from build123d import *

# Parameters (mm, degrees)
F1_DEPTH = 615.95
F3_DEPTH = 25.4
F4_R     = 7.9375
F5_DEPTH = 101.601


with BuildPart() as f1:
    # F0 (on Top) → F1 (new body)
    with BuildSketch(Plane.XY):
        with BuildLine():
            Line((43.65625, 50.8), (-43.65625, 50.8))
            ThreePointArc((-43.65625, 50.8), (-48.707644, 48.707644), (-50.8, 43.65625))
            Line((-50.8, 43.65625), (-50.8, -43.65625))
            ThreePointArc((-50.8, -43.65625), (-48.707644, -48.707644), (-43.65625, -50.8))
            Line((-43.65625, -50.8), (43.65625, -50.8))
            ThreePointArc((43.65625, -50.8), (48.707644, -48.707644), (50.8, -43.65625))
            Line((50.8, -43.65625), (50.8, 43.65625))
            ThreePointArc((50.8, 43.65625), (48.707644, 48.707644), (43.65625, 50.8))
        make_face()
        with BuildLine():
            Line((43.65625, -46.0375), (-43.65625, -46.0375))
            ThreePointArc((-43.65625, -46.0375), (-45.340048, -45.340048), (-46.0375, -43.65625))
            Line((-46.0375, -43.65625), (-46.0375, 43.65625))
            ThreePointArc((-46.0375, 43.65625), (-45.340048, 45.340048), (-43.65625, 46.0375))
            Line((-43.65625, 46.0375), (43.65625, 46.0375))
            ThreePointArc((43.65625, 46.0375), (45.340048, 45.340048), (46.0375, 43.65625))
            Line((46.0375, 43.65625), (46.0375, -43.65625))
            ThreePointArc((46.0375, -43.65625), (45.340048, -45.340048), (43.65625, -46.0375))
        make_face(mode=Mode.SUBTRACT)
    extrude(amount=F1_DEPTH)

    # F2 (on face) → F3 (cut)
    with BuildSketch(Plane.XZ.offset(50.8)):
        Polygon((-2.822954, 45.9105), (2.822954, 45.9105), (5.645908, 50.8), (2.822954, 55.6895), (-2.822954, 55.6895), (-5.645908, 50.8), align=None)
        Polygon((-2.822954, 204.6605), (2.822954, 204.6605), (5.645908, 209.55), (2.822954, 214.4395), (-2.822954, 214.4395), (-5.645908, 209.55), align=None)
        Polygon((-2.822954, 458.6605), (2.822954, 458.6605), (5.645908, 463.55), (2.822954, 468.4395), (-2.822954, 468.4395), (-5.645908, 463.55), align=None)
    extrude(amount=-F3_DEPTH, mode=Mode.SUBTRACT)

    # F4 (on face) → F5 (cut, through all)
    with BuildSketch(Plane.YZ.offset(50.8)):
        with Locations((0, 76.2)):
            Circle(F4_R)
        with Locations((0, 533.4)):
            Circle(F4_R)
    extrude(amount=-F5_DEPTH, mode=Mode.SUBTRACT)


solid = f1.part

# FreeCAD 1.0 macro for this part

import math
import FreeCAD as App
import Part
import Sketcher
from FreeCAD import Vector
Q = App.Units.Quantity


def add_polygon(sketch, points):
    """Adds a closed chain of lines whose ends are joined by coincident constraints."""
    first, n = sketch.GeometryCount, len(points)
    for a, b in zip(points, points[1:] + points[:1]):
        sketch.addGeometry(Part.LineSegment(App.Vector(*a, 0), App.Vector(*b, 0)), False)
    for i in range(n):
        sketch.addConstraint(Sketcher.Constraint("Coincident", first + i, 2, first + (i + 1) % n, 1))

doc = App.newDocument("Part")
body = doc.addObject("PartDesign::Body", "Body")

# Sketch on XY plane
sketch1 = body.newObject("Sketcher::SketchObject", "Sketch")
sketch1.AttachmentSupport = (doc.getObject("XY_Plane"), [""])
sketch1.MapMode = "FlatFace"
sketch1.addGeometry([
    Part.LineSegment(Vector(43.7, 50.8, 0), Vector(-43.7, 50.8, 0)),  # 0
    Part.ArcOfCircle(Part.Circle(Vector(-43.7, 43.7, 0), Vector(0, 0, 1), 7.1), math.radians(90), math.radians(180)),  # 1
    Part.LineSegment(Vector(-50.8, 43.7, 0), Vector(-50.8, -43.7, 0)),  # 2
    Part.ArcOfCircle(Part.Circle(Vector(-43.7, -43.7, 0), Vector(0, 0, 1), 7.1), math.radians(-180), math.radians(-90)),  # 3
    Part.LineSegment(Vector(-43.7, -50.8, 0), Vector(43.7, -50.8, 0)),  # 4
    Part.ArcOfCircle(Part.Circle(Vector(43.7, -43.7, 0), Vector(0, 0, 1), 7.1), math.radians(-90), math.radians(0)),  # 5
    Part.LineSegment(Vector(50.8, -43.7, 0), Vector(50.8, 43.7, 0)),  # 6
    Part.ArcOfCircle(Part.Circle(Vector(43.7, 43.7, 0), Vector(0, 0, 1), 7.1), math.radians(0), math.radians(90)),  # 7
    Part.ArcOfCircle(Part.Circle(Vector(43.7, -43.7, 0), Vector(0, 0, 1), 2.4), math.radians(-90), math.radians(0)),  # 8
    Part.LineSegment(Vector(43.7, -46, 0), Vector(-43.7, -46, 0)),  # 9
    Part.ArcOfCircle(Part.Circle(Vector(-43.7, -43.7, 0), Vector(0, 0, 1), 2.4), math.radians(-180), math.radians(-90)),  # 10
    Part.LineSegment(Vector(-46, -43.7, 0), Vector(-46, 43.7, 0)),  # 11
    Part.ArcOfCircle(Part.Circle(Vector(-43.7, 43.7, 0), Vector(0, 0, 1), 2.4), math.radians(90), math.radians(180)),  # 12
    Part.LineSegment(Vector(-43.7, 46, 0), Vector(43.7, 46, 0)),  # 13
    Part.ArcOfCircle(Part.Circle(Vector(43.7, 43.7, 0), Vector(0, 0, 1), 2.4), math.radians(0), math.radians(90)),  # 14
    Part.LineSegment(Vector(46, 43.7, 0), Vector(46, -43.7, 0)),  # 15
], False)
sketch1.addConstraint([
    Sketcher.Constraint("Tangent", 0, 2, 1, 1),
    Sketcher.Constraint("Tangent", 1, 2, 2, 1),
    Sketcher.Constraint("Tangent", 2, 2, 3, 1),
    Sketcher.Constraint("Tangent", 3, 2, 4, 1),
    Sketcher.Constraint("Tangent", 4, 2, 5, 1),
    Sketcher.Constraint("Tangent", 5, 2, 6, 1),
    Sketcher.Constraint("Tangent", 6, 2, 7, 1),
    Sketcher.Constraint("Tangent", 7, 2, 0, 1),
    Sketcher.Constraint("Tangent", 8, 1, 9, 1),
    Sketcher.Constraint("Tangent", 9, 2, 10, 2),
    Sketcher.Constraint("Tangent", 10, 1, 11, 1),
    Sketcher.Constraint("Tangent", 11, 2, 12, 2),
    Sketcher.Constraint("Tangent", 12, 1, 13, 1),
    Sketcher.Constraint("Tangent", 13, 2, 14, 2),
    Sketcher.Constraint("Tangent", 14, 1, 15, 1),
    Sketcher.Constraint("Tangent", 15, 2, 8, 2),
    Sketcher.Constraint("Horizontal", 0),
    Sketcher.Constraint("Vertical", 2),
    Sketcher.Constraint("Horizontal", 4),
    Sketcher.Constraint("Vertical", 6),
    Sketcher.Constraint("Horizontal", 9),
    Sketcher.Constraint("Vertical", 11),
    Sketcher.Constraint("Horizontal", 13),
    Sketcher.Constraint("Vertical", 15),
    Sketcher.Constraint("Coincident", 8, 3, 5, 3),
    Sketcher.Constraint("Coincident", 10, 3, 3, 3),
    Sketcher.Constraint("Coincident", 12, 3, 1, 3),
    Sketcher.Constraint("Equal", 1, 3),
    Sketcher.Constraint("Equal", 3, 5),
    Sketcher.Constraint("Equal", 5, 7),
    Sketcher.Constraint("Equal", 12, 14),
    Sketcher.Constraint("Symmetric", 1, 3, 5, 3, -1, 1),
    Sketcher.Constraint("Equal", 13, 2),
    Sketcher.Constraint("DistanceY", -1, 1, 0, 2, Q("2 in")),
    Sketcher.Constraint("Radius", 1, Q("0.28125 in")),
    Sketcher.Constraint("Radius", 8, Q("0.09375 in")),
])
pad1 = body.newObject("PartDesign::Pad", "Pad")
pad1.Profile = sketch1
pad1.Length = Q("24.25 in")

# Sketch on XZ plane
sketch2 = body.newObject("Sketcher::SketchObject", "Sketch001")
sketch2.AttachmentSupport = (doc.getObject("XZ_Plane"), [""])
sketch2.MapMode = "FlatFace"
sketch2.AttachmentOffset = App.Placement(Vector(0, 0, 2 * 25.4), App.Rotation())
add_polygon(sketch2, [(-3, 46), (3, 46), (6, 51), (3, 56), (-3, 56), (-6, 51)])  # lines 0-5
add_polygon(sketch2, [(-3, 205), (3, 205), (6, 210), (3, 214), (-3, 214), (-6, 210)])  # lines 6-11
add_polygon(sketch2, [(-3, 459), (3, 459), (6, 464), (3, 468), (-3, 468), (-6, 464)])  # lines 12-17
sketch2.addConstraint([
    Sketcher.Constraint("Horizontal", 0),
    Sketcher.Constraint("Horizontal", 3),
    Sketcher.Constraint("Horizontal", 6),
    Sketcher.Constraint("Horizontal", 9),
    Sketcher.Constraint("Horizontal", 12),
    Sketcher.Constraint("Horizontal", 15),
    Sketcher.Constraint("Symmetric", 1, 2, 4, 2, -2),
    Sketcher.Constraint("Symmetric", 7, 2, 10, 2, -2),
    Sketcher.Constraint("Symmetric", 13, 2, 16, 2, -2),
    Sketcher.Constraint("Parallel", 1, 4),
    Sketcher.Constraint("Parallel", 2, 5),
    Sketcher.Constraint("Parallel", 4, 7),
    Sketcher.Constraint("Parallel", 5, 8),
    Sketcher.Constraint("Parallel", 7, 10),
    Sketcher.Constraint("Parallel", 8, 11),
    Sketcher.Constraint("Parallel", 10, 13),
    Sketcher.Constraint("Parallel", 11, 14),
    Sketcher.Constraint("Parallel", 13, 16),
    Sketcher.Constraint("Parallel", 14, 17),
    Sketcher.Constraint("Vertical", 0, 2, 2, 2),
    Sketcher.Constraint("Vertical", 3, 2, 5, 2),
    Sketcher.Constraint("Vertical", 2, 2, 6, 2),
    Sketcher.Constraint("Vertical", 1, 2, 7, 2),
    Sketcher.Constraint("Vertical", 6, 2, 8, 2),
    Sketcher.Constraint("Vertical", 8, 2, 12, 2),
    Sketcher.Constraint("Vertical", 7, 2, 13, 2),
    Sketcher.Constraint("Vertical", 12, 2, 14, 2),
    Sketcher.Constraint("DistanceY", -1, 1, 1, 2, Q("2 in")),
    Sketcher.Constraint("Angle", 1, Q("60.000001 deg")),
    Sketcher.Constraint("DistanceY", 6, 2, 12, 2, Q("10 in")),
    Sketcher.Constraint("DistanceY", -1, 1, 7, 2, Q("8.25 in")),
    Sketcher.Constraint("DistanceY", 0, 2, 2, 2, Q("0.385 in")),
    Sketcher.Constraint("DistanceX", 0, 1, 0, 2, Q("5.645908 mm")),
])
pocket1 = body.newObject("PartDesign::Pocket", "Pocket")
pocket1.Profile = sketch2
pocket1.Length = Q("1 in")

# Sketch on YZ plane
sketch3 = body.newObject("Sketcher::SketchObject", "Sketch002")
sketch3.AttachmentSupport = (doc.getObject("YZ_Plane"), [""])
sketch3.MapMode = "FlatFace"
sketch3.AttachmentOffset = App.Placement(Vector(0, 0, 2 * 25.4), App.Rotation())
sketch3.addGeometry([
    Part.Circle(Vector(0, 76, 0), Vector(0, 0, 1), 8),
    Part.Circle(Vector(0, 533, 0), Vector(0, 0, 1), 8),
], False)
sketch3.addConstraint([
    Sketcher.Constraint("Equal", 0, 1),
    Sketcher.Constraint("PointOnObject", 0, 3, -2),
    Sketcher.Constraint("PointOnObject", 1, 3, -2),
    Sketcher.Constraint("Diameter", 0, Q("0.625 in")),
    Sketcher.Constraint("DistanceY", -1, 1, 0, 3, Q("3 in")),
    Sketcher.Constraint("DistanceY", -1, 1, 1, 3, Q("21 in")),
])
pocket2 = body.newObject("PartDesign::Pocket", "Pocket001")
pocket2.Profile = sketch3
pocket2.Type = "ThroughAll"

doc.recompute()
